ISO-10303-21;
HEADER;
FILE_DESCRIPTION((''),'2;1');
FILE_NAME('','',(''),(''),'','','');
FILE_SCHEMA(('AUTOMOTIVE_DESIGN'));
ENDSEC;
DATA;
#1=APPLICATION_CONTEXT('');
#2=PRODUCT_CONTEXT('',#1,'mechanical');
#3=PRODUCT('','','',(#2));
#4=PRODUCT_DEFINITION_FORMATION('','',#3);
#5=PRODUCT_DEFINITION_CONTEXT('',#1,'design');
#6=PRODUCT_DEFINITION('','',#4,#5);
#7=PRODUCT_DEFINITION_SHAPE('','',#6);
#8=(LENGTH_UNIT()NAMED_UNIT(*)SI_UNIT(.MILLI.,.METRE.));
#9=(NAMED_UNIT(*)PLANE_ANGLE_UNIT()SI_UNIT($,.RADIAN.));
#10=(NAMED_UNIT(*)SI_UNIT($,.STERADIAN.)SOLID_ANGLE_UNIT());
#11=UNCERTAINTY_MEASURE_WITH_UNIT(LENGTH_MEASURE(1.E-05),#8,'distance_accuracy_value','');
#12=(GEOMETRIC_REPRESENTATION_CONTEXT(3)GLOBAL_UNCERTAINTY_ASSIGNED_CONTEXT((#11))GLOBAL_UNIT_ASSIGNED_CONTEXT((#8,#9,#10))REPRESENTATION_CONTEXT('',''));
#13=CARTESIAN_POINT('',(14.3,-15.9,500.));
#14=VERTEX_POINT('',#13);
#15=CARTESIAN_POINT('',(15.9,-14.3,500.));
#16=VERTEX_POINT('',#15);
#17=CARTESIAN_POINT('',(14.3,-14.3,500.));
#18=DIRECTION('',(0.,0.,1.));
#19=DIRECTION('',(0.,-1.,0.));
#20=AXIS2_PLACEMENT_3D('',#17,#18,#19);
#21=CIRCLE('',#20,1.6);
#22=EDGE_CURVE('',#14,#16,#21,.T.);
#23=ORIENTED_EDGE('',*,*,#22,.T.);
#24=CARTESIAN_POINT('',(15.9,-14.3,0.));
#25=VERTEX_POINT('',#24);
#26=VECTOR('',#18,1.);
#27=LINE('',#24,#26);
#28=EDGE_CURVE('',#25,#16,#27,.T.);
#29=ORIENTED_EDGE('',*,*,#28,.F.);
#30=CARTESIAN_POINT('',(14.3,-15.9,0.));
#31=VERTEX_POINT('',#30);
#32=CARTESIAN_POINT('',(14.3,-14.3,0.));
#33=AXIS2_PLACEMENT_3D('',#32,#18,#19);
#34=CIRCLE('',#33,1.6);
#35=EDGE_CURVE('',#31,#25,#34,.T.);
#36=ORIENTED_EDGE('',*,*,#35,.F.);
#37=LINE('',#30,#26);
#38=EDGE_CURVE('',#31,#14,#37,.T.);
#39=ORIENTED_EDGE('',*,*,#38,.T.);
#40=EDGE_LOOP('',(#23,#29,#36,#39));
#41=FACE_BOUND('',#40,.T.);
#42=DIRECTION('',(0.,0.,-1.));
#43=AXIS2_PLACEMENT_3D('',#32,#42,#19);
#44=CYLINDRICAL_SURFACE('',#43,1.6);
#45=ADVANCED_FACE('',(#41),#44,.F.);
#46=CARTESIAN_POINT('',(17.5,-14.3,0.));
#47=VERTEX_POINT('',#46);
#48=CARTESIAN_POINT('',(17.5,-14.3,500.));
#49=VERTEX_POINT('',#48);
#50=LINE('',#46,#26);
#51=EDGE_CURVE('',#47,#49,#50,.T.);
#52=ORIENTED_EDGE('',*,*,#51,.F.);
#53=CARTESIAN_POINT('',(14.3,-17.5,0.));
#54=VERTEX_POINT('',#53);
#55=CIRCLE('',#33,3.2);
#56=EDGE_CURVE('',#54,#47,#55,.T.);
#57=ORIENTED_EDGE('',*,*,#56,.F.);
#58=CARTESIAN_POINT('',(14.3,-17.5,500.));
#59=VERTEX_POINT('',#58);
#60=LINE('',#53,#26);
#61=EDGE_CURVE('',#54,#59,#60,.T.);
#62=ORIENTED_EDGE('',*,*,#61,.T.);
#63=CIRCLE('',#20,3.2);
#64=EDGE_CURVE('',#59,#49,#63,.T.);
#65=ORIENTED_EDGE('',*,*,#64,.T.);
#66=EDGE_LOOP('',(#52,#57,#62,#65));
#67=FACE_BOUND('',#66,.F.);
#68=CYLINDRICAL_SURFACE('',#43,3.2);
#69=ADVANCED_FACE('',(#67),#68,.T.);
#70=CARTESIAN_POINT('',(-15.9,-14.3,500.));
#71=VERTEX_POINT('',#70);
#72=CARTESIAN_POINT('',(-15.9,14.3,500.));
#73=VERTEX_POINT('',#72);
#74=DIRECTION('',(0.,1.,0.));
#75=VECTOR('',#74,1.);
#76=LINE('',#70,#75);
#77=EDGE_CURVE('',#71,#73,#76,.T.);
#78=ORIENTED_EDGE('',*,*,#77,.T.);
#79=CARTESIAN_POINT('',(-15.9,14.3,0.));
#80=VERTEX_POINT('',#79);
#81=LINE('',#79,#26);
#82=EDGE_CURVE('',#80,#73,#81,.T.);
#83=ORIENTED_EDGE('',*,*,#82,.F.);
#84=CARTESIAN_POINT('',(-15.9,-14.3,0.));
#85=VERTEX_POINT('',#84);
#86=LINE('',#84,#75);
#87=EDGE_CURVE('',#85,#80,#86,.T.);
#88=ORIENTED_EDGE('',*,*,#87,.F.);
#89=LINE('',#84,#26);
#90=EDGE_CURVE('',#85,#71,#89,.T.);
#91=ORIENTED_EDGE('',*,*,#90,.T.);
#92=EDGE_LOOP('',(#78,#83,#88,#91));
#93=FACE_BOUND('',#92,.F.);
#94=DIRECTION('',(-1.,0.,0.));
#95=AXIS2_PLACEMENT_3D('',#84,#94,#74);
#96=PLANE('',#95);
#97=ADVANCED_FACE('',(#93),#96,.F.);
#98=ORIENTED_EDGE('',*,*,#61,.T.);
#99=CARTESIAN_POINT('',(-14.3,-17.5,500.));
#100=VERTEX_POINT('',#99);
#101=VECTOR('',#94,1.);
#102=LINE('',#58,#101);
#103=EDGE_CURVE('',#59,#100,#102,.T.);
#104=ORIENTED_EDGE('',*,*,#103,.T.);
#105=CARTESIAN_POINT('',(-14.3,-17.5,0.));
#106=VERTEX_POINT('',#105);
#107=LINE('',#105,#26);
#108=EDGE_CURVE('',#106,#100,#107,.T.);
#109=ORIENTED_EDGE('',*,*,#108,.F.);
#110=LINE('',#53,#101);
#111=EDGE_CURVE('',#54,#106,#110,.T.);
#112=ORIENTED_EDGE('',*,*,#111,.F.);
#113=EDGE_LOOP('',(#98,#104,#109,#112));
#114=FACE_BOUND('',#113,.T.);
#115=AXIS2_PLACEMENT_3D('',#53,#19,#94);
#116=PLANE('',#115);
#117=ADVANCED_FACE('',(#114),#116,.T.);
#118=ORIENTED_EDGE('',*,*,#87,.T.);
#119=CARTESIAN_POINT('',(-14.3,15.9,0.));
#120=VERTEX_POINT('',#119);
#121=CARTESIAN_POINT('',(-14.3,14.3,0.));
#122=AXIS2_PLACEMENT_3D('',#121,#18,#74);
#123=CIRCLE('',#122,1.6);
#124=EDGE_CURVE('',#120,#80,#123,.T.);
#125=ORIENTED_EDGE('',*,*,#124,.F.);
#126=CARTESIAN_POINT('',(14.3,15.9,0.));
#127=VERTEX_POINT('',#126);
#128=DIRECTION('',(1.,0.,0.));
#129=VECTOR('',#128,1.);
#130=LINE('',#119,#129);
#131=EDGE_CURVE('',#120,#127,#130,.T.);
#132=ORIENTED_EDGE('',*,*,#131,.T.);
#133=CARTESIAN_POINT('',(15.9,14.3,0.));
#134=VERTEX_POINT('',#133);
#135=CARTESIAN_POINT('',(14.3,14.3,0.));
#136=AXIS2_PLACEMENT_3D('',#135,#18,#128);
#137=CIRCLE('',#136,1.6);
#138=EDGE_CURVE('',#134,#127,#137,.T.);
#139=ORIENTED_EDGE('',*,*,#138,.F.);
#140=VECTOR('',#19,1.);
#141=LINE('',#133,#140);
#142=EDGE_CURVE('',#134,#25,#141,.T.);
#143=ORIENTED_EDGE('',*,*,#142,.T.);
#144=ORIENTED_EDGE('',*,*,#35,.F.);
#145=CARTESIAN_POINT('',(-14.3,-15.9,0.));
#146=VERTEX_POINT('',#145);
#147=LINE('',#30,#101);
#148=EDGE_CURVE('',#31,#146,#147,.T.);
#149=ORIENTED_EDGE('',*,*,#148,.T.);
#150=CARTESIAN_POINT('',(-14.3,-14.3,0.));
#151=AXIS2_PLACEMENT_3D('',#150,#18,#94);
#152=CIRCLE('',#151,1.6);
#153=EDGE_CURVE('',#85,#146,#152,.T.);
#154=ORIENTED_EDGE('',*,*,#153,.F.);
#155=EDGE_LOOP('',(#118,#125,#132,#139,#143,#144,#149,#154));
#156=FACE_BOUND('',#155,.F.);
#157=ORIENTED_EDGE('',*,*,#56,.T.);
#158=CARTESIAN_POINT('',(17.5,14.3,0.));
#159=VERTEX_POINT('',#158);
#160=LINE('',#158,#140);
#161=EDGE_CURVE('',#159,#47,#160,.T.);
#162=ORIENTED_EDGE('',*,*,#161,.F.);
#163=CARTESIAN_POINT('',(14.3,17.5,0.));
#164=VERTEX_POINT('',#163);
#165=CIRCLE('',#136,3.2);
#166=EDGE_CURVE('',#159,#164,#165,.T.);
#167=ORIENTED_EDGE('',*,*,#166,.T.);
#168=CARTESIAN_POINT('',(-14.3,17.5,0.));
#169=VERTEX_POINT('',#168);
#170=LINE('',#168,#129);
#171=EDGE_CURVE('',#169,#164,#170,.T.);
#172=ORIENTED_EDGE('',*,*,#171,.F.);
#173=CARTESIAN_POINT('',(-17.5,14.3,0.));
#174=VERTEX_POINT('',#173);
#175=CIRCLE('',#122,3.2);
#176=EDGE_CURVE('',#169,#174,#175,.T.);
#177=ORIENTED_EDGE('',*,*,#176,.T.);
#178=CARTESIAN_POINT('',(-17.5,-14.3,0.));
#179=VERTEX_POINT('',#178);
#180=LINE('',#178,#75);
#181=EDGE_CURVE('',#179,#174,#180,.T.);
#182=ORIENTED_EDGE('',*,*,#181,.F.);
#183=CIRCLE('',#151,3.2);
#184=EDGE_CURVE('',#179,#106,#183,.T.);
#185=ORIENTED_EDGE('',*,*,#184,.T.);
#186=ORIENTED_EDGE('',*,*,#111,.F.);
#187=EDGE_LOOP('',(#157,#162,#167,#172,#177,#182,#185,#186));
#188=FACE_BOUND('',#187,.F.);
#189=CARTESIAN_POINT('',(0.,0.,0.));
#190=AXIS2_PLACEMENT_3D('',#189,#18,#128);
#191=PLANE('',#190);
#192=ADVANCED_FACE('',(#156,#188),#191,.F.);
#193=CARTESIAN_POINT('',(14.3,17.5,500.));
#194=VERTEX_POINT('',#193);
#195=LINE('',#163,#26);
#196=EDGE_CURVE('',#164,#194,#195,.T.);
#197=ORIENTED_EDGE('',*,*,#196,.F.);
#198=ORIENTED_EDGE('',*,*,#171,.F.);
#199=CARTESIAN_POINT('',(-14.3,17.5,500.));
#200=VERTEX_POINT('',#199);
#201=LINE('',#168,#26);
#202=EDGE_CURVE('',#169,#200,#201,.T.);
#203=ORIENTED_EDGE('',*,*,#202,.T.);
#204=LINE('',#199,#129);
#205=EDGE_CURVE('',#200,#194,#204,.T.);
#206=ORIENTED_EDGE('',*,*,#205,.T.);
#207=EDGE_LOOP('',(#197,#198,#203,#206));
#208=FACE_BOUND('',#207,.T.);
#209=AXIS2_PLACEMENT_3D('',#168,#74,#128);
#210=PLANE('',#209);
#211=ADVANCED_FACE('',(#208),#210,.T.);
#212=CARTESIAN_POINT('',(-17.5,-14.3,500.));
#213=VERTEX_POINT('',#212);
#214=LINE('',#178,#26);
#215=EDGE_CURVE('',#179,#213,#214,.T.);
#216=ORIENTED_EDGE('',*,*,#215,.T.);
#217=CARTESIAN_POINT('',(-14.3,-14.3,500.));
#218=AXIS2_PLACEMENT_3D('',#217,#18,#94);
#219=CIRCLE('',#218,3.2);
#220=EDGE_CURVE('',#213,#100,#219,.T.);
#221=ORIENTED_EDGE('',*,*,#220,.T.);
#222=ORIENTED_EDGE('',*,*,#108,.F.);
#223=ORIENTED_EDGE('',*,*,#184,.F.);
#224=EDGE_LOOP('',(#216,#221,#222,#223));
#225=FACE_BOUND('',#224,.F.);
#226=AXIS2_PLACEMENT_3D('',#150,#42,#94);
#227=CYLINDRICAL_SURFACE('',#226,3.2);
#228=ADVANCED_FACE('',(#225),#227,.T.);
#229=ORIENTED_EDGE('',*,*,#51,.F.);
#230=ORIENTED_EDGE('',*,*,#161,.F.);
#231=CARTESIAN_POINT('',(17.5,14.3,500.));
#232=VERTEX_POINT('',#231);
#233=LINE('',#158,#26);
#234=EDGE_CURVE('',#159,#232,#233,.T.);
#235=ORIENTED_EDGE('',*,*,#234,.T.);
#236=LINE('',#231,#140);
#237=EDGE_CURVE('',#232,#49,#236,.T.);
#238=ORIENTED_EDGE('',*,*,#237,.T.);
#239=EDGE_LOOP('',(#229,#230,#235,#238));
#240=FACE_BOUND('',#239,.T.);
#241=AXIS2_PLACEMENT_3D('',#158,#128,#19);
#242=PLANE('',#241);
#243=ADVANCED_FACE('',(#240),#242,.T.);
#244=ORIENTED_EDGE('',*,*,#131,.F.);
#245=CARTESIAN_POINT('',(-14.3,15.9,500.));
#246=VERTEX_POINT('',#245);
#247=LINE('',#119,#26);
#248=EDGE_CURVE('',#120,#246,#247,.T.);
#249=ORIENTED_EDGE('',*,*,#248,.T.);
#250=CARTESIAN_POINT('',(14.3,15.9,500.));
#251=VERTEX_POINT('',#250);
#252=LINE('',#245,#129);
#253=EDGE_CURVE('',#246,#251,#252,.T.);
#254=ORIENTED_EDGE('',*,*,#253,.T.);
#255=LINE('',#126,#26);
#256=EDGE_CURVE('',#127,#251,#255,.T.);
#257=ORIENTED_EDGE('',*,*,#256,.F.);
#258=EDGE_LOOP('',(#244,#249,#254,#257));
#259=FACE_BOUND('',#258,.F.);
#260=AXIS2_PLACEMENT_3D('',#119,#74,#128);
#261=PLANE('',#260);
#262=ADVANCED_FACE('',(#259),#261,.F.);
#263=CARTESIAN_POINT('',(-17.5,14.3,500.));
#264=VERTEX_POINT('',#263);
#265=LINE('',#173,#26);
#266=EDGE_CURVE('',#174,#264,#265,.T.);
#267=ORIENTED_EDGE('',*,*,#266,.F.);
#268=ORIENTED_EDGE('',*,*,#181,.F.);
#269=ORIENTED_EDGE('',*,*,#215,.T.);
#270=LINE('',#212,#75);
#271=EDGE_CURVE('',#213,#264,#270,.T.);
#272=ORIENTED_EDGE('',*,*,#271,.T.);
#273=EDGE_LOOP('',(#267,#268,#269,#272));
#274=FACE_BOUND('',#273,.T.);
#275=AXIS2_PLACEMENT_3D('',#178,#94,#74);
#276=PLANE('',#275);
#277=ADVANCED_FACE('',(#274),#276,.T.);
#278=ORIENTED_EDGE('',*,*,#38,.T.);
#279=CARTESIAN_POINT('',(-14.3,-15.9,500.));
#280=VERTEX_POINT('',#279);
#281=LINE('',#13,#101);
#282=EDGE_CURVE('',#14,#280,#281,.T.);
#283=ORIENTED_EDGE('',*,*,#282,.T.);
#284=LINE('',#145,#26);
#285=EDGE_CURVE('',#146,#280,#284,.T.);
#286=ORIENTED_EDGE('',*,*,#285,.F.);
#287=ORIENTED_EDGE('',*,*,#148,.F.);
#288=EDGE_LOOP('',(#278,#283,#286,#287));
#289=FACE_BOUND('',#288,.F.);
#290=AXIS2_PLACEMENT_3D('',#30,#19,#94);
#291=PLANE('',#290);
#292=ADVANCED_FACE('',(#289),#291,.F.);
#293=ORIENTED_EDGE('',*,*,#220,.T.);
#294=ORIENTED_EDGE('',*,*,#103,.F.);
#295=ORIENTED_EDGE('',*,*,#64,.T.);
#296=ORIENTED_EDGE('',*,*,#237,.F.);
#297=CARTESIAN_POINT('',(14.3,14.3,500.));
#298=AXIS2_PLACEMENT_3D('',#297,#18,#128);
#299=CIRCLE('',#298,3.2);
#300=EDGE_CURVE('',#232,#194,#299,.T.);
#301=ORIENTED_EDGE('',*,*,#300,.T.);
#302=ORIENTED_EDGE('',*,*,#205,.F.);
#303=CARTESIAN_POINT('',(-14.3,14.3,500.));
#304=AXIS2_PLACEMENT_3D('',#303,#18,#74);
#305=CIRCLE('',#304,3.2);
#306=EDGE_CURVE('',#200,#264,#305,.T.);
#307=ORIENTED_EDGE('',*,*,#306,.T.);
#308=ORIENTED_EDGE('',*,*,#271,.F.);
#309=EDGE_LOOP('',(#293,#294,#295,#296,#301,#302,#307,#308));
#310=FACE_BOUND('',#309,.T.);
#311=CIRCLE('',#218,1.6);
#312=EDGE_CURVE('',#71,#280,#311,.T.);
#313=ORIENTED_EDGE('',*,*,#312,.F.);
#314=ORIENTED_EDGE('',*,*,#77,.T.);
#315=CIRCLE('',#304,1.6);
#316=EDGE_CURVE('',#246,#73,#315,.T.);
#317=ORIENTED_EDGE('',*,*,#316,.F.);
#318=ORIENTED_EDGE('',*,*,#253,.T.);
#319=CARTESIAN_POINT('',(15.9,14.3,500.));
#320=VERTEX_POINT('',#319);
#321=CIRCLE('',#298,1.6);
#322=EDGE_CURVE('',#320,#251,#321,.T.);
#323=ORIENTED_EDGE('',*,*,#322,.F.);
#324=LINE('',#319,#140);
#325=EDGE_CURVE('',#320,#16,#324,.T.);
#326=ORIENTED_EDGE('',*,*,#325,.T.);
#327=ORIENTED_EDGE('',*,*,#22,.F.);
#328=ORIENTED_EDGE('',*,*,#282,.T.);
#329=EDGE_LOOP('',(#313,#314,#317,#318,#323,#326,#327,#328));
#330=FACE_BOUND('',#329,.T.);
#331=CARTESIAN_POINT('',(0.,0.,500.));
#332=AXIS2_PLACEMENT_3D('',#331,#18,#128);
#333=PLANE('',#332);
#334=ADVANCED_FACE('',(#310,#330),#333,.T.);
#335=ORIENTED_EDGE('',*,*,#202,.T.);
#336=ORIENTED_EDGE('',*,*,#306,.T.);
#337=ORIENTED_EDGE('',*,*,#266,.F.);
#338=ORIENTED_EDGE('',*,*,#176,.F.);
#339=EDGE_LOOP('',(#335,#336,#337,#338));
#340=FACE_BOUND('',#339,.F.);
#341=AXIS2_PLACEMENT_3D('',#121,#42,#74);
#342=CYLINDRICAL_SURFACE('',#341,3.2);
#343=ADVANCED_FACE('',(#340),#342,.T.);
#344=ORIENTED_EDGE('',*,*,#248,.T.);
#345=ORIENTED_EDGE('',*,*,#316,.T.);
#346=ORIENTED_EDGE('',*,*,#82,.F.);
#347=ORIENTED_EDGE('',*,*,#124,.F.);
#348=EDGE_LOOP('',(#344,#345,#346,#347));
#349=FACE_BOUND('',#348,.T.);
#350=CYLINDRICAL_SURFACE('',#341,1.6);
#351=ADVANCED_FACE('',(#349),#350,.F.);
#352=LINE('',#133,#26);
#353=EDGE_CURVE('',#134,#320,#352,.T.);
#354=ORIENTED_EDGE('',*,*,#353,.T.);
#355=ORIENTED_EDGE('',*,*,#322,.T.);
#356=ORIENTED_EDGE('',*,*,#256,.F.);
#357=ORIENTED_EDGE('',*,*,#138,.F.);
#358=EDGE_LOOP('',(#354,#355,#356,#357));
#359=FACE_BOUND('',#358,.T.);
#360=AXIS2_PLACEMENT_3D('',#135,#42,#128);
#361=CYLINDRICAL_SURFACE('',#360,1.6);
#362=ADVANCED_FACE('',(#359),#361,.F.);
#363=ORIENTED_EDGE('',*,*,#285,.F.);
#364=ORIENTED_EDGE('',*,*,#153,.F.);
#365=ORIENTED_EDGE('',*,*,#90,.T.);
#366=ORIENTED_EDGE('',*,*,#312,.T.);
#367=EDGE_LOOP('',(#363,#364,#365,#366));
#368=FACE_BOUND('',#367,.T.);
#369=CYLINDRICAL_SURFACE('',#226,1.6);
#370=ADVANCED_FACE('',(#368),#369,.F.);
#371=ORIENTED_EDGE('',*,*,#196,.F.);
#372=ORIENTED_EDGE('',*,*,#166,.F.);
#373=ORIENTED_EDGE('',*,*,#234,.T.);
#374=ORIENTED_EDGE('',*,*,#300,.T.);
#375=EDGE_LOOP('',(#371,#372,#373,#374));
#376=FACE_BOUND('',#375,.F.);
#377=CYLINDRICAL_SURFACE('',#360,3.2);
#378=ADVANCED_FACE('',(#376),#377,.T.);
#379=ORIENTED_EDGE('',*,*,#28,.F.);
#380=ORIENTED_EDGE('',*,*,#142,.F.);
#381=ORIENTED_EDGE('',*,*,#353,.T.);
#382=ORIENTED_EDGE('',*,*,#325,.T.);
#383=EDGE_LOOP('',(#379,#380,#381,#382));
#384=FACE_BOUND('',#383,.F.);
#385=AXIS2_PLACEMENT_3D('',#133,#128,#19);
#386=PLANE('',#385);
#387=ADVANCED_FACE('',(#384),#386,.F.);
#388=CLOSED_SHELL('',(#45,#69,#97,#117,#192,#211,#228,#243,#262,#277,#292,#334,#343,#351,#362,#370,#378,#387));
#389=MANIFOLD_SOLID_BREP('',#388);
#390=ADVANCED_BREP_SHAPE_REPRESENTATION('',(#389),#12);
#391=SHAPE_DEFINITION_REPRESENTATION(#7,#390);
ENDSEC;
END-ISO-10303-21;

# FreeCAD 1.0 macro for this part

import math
import FreeCAD as App
import Part
import Sketcher

V = App.Vector

doc = App.newDocument("Part")
body = doc.addObject("PartDesign::Body", "Body")

sketch1 = body.newObject("Sketcher::SketchObject", "Sketch")
sketch1.AttachmentSupport = (doc.getObject("XY_Plane"), [""])
sketch1.MapMode = "FlatFace"
sketch1.addGeometry([
    Part.LineSegment(V(-17.5, 14.3, 0), V(-17.5, -14.3, 0)),
    Part.ArcOfCircle(Part.Circle(V(-14.3, -14.3, 0), V(0, 0, 1), 3.2), math.radians(180), math.radians(270)),
    Part.LineSegment(V(-14.3, -17.5, 0), V(14.3, -17.5, 0)),
    Part.ArcOfCircle(Part.Circle(V(14.3, -14.3, 0), V(0, 0, 1), 3.2), math.radians(-90), math.radians(0)),
    Part.LineSegment(V(17.5, -14.3, 0), V(17.5, 14.3, 0)),
    Part.ArcOfCircle(Part.Circle(V(14.3, 14.3, 0), V(0, 0, 1), 3.2), math.radians(0), math.radians(90)),
    Part.LineSegment(V(14.3, 17.5, 0), V(-14.3, 17.5, 0)),
    Part.ArcOfCircle(Part.Circle(V(-14.3, 14.3, 0), V(0, 0, 1), 3.2), math.radians(90), math.radians(180)),
    Part.ArcOfCircle(Part.Circle(V(-14.3, 14.3, 0), V(0, 0, 1), 1.6), math.radians(90), math.radians(180)),
    Part.LineSegment(V(-14.3, 15.9, 0), V(14.3, 15.9, 0)),
    Part.ArcOfCircle(Part.Circle(V(14.3, 14.3, 0), V(0, 0, 1), 1.6), math.radians(0), math.radians(90)),
    Part.LineSegment(V(15.9, 14.3, 0), V(15.9, -14.3, 0)),
    Part.ArcOfCircle(Part.Circle(V(14.3, -14.3, 0), V(0, 0, 1), 1.6), math.radians(-90), math.radians(0)),
    Part.LineSegment(V(14.3, -15.9, 0), V(-14.3, -15.9, 0)),
    Part.ArcOfCircle(Part.Circle(V(-14.3, -14.3, 0), V(0, 0, 1), 1.6), math.radians(180), math.radians(270)),
    Part.LineSegment(V(-15.9, -14.3, 0), V(-15.9, 14.3, 0)),
], False)
sketch1.addConstraint([
    Sketcher.Constraint("Tangent", 0, 2, 1, 1),
    Sketcher.Constraint("Tangent", 1, 2, 2, 1),
    Sketcher.Constraint("Tangent", 2, 2, 3, 1),
    Sketcher.Constraint("Tangent", 3, 2, 4, 1),
    Sketcher.Constraint("Tangent", 4, 2, 5, 1),
    Sketcher.Constraint("Tangent", 5, 2, 6, 1),
    Sketcher.Constraint("Tangent", 6, 2, 7, 1),
    Sketcher.Constraint("Tangent", 7, 2, 0, 1),
    Sketcher.Constraint("Tangent", 8, 1, 9, 1),
    Sketcher.Constraint("Tangent", 9, 2, 10, 2),
    Sketcher.Constraint("Tangent", 10, 1, 11, 1),
    Sketcher.Constraint("Tangent", 11, 2, 12, 2),
    Sketcher.Constraint("Tangent", 12, 1, 13, 1),
    Sketcher.Constraint("Tangent", 13, 2, 14, 2),
    Sketcher.Constraint("Tangent", 14, 1, 15, 1),
    Sketcher.Constraint("Tangent", 15, 2, 8, 2),
    Sketcher.Constraint("Vertical", 0),
    Sketcher.Constraint("Horizontal", 2),
    Sketcher.Constraint("Vertical", 4),
    Sketcher.Constraint("Horizontal", 6),
    Sketcher.Constraint("Horizontal", 9),
    Sketcher.Constraint("Vertical", 11),
    Sketcher.Constraint("Horizontal", 13),
    Sketcher.Constraint("Vertical", 15),
    Sketcher.Constraint("Coincident", 8, 3, 7, 3),
    Sketcher.Constraint("Coincident", 10, 3, 5, 3),
    Sketcher.Constraint("Coincident", 12, 3, 3, 3),
    Sketcher.Constraint("Equal", 1, 3),
    Sketcher.Constraint("Equal", 3, 5),
    Sketcher.Constraint("Equal", 5, 7),
    Sketcher.Constraint("Equal", 12, 14),
    Sketcher.Constraint("Symmetric", 1, 3, 5, 3, -1, 1),
    Sketcher.Constraint("Equal", 13, 0),
    Sketcher.Constraint("Radius", 1, 3.2),
    Sketcher.Constraint("Radius", 8, 1.6),
    Sketcher.Constraint("DistanceX", 0, 2, -1, 1, 17.5),
])
pad1 = body.newObject("PartDesign::Pad", "Pad")
pad1.Profile = sketch1
pad1.Length = 500

doc.recompute()
